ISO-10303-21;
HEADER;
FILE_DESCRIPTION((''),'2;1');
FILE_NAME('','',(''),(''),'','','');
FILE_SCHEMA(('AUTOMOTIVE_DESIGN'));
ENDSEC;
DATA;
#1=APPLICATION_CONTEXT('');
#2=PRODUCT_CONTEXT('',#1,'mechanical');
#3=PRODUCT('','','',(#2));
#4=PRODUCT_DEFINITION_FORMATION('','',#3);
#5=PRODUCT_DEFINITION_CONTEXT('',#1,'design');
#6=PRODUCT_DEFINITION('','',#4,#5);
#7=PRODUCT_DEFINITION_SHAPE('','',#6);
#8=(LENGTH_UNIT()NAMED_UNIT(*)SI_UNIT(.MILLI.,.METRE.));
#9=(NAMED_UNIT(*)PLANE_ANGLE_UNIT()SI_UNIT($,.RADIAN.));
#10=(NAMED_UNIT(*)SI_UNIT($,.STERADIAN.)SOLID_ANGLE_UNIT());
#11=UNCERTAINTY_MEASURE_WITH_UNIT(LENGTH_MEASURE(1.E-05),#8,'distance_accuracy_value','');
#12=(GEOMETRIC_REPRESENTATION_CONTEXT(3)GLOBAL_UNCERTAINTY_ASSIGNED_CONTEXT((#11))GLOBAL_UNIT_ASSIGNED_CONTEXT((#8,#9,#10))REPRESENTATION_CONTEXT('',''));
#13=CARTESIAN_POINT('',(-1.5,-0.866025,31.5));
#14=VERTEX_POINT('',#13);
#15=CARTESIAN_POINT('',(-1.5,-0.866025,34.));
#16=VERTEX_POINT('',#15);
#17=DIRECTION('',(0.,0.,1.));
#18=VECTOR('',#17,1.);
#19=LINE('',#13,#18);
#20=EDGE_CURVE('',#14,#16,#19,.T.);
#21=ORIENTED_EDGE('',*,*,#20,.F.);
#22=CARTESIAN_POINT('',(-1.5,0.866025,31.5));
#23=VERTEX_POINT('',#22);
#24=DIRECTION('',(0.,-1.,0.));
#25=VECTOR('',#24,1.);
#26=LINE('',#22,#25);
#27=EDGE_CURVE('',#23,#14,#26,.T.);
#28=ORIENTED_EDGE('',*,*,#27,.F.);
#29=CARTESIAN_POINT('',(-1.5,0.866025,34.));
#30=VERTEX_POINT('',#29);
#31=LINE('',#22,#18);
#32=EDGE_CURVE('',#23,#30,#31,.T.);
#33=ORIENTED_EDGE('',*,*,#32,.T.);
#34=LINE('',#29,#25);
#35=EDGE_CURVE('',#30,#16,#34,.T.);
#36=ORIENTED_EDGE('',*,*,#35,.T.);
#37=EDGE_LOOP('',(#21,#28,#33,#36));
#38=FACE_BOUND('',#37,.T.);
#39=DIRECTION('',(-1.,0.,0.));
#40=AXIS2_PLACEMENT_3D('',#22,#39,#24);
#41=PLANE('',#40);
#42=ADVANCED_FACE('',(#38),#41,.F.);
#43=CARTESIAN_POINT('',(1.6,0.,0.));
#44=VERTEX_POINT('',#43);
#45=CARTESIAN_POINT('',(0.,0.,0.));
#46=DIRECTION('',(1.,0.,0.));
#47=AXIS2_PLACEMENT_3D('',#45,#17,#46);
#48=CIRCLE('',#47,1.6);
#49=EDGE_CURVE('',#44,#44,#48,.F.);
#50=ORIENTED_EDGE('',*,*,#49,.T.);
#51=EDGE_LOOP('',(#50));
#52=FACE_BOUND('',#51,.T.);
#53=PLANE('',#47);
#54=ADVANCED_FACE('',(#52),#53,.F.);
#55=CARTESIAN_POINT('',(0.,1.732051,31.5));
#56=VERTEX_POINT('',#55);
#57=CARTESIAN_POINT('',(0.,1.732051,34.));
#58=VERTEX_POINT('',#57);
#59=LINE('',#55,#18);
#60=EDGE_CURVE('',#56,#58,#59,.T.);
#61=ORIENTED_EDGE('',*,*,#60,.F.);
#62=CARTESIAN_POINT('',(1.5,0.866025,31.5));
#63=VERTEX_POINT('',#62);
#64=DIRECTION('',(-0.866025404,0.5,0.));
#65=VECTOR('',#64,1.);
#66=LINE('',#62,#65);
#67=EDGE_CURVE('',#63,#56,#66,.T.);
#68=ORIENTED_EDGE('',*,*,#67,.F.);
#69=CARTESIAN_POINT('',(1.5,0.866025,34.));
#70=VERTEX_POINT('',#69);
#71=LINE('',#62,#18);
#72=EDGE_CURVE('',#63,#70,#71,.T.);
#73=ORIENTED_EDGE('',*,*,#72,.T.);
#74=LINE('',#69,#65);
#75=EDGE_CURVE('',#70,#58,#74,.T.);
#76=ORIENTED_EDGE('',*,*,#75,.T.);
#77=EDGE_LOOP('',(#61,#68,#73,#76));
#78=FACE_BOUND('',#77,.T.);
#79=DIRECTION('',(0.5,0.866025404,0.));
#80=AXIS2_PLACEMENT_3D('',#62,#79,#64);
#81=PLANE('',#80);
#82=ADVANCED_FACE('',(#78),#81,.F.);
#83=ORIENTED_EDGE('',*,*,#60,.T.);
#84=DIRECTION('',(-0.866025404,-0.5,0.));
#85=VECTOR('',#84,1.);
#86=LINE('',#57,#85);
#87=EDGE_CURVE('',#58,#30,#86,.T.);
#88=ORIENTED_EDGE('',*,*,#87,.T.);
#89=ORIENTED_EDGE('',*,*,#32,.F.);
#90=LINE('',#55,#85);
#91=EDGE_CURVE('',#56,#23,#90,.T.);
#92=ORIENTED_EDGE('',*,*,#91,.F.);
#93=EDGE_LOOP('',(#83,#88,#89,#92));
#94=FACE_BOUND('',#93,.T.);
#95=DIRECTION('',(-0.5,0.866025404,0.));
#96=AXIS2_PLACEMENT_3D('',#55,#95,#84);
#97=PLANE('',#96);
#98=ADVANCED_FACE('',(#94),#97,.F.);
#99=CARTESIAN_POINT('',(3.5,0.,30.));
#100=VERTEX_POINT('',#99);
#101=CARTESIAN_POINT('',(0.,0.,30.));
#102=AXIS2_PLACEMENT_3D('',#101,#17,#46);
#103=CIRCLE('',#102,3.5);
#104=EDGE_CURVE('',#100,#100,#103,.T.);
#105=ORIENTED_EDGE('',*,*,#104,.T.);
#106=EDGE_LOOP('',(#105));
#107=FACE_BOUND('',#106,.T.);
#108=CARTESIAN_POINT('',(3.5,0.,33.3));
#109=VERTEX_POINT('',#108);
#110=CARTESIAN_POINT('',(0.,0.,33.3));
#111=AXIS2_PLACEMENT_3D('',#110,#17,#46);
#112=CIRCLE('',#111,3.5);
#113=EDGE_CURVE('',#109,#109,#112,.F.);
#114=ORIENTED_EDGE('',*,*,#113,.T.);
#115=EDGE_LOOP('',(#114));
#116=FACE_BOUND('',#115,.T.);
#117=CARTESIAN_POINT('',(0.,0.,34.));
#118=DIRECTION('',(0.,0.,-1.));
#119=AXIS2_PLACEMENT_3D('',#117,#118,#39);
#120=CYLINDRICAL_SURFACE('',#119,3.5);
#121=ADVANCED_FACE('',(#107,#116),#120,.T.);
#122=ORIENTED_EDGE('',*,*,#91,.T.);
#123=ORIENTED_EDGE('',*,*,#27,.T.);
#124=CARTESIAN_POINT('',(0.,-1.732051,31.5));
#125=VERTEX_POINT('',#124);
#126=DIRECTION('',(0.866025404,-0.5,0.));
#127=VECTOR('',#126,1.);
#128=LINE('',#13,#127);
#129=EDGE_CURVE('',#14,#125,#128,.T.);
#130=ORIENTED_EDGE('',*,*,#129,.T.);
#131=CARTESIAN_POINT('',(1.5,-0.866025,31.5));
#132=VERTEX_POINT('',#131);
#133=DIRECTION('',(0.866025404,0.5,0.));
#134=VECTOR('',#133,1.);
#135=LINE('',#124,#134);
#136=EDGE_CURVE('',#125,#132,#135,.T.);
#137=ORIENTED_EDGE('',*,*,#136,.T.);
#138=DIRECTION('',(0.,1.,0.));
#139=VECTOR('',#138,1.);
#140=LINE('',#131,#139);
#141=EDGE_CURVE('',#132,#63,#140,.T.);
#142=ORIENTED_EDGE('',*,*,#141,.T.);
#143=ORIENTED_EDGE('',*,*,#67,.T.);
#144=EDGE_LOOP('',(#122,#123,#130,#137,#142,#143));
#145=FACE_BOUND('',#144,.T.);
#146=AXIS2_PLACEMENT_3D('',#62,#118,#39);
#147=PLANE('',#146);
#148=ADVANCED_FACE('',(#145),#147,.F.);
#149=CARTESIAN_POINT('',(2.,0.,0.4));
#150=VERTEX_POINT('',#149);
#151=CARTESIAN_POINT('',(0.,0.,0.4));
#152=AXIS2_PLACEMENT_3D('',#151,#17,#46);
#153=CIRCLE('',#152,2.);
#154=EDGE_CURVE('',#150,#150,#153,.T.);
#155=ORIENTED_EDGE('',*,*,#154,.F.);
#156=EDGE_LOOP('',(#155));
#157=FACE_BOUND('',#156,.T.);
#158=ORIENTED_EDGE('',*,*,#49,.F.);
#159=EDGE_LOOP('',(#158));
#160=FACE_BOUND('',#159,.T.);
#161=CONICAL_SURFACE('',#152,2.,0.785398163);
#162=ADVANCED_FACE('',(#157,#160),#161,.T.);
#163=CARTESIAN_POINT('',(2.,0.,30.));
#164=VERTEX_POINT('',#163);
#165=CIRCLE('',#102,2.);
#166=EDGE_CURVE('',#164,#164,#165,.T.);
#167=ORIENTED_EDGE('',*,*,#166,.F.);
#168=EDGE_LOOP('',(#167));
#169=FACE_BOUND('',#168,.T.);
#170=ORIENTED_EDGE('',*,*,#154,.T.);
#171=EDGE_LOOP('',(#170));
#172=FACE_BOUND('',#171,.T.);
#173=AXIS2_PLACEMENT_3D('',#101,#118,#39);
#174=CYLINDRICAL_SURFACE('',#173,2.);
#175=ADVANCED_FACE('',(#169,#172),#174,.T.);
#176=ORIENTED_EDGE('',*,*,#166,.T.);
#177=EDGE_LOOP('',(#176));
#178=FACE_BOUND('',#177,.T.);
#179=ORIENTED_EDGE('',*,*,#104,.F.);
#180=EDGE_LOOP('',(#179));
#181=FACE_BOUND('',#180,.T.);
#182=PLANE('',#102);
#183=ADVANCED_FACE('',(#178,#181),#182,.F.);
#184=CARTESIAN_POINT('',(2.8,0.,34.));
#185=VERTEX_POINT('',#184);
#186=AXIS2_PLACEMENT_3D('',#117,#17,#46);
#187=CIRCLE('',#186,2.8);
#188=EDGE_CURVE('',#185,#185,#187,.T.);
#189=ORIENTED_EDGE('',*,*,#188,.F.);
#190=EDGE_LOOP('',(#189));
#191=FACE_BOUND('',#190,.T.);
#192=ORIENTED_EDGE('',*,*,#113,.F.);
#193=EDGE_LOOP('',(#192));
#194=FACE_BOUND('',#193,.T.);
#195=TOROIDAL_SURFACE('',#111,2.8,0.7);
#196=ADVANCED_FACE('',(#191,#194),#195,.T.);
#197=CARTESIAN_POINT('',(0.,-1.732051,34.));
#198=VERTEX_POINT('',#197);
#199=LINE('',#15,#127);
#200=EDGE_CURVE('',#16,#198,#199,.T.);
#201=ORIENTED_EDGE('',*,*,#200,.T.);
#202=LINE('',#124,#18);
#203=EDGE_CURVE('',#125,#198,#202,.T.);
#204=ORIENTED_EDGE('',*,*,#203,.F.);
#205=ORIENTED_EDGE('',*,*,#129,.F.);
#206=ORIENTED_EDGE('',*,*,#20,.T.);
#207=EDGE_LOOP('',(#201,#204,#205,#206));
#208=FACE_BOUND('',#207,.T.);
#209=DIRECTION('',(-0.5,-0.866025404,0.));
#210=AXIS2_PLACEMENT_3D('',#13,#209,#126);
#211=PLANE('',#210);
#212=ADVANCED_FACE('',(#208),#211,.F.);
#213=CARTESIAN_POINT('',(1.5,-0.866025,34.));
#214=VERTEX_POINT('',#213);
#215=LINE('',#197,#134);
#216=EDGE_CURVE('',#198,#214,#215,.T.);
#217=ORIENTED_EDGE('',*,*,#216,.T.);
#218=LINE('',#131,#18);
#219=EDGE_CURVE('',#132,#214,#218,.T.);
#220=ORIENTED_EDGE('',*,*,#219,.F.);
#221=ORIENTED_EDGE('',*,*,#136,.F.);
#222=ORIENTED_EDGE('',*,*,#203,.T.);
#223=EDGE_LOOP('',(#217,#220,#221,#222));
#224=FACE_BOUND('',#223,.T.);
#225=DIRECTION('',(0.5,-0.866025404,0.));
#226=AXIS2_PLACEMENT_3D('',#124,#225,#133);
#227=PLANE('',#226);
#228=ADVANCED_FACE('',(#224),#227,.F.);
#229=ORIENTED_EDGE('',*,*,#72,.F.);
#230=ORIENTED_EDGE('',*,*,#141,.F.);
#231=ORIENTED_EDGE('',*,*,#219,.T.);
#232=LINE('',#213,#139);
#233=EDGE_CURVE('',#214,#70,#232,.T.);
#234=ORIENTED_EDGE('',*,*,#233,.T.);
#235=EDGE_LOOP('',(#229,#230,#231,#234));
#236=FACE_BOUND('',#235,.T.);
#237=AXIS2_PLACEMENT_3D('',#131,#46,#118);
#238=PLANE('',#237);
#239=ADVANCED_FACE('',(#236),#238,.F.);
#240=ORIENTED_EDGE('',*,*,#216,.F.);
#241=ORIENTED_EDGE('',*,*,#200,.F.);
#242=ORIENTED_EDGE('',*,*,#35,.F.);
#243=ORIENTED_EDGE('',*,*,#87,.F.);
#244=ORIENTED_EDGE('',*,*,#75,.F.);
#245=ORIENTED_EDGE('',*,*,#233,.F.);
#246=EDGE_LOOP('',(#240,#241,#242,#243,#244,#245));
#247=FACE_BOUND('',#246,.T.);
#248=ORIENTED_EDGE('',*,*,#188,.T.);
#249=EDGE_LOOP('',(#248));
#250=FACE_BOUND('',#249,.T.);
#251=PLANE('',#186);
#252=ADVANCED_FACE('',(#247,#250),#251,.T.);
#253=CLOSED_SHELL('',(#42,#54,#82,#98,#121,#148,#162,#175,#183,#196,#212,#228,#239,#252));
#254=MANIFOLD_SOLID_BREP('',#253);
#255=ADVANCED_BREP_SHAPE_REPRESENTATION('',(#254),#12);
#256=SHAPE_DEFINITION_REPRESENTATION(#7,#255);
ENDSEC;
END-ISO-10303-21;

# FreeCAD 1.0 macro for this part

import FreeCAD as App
import Part
import Sketcher
from FreeCAD import Vector
Q = App.Units.Quantity


def edges_at(feature, points):
    """Names of the edges that pass closest to the given points."""
    edges = feature.Shape.Edges
    near = lambda p: min(range(len(edges)), key=lambda i: edges[i].distToShape(Part.Vertex(*p))[0])
    return sorted({f"Edge{near(p) + 1}" for p in points})


def add_polygon(sketch, points):
    """Adds a closed chain of lines whose ends are joined by coincident constraints."""
    first, n = sketch.GeometryCount, len(points)
    for a, b in zip(points, points[1:] + points[:1]):
        sketch.addGeometry(Part.LineSegment(App.Vector(*a, 0), App.Vector(*b, 0)), False)
    for i in range(n):
        sketch.addConstraint(Sketcher.Constraint("Coincident", first + i, 2, first + (i + 1) % n, 1))

doc = App.newDocument("Part")
body = doc.addObject("PartDesign::Body", "Body")

sketch1 = body.newObject("Sketcher::SketchObject", "Sketch")
sketch1.AttachmentSupport = (doc.getObject("XY_Plane"), [""])
sketch1.MapMode = "FlatFace"
sketch1.addGeometry(Part.Circle(Vector(0, 0, 0), Vector(0, 0, 1), 2), False)
sketch1.addConstraint(Sketcher.Constraint("Coincident", 0, 3, -1, 1))
sketch1.addConstraint(Sketcher.Constraint("Diameter", 0, Q("4 mm")))
pad1 = body.newObject("PartDesign::Pad", "Pad")
pad1.Profile = sketch1
pad1.Length = 30

sketch2 = body.newObject("Sketcher::SketchObject", "Sketch001")
sketch2.AttachmentSupport = (doc.getObject("XY_Plane"), [""])
sketch2.MapMode = "FlatFace"
sketch2.AttachmentOffset = App.Placement(Vector(0, 0, 30), App.Rotation())
sketch2.addGeometry(Part.Circle(Vector(0, 0, 0), Vector(0, 0, 1), 3.5), False)
sketch2.addConstraint(Sketcher.Constraint("Coincident", 0, 3, -1, 1))
sketch2.addConstraint(Sketcher.Constraint("Diameter", 0, Q("7 mm")))
pad2 = body.newObject("PartDesign::Pad", "Pad001")
pad2.Profile = sketch2
pad2.Length = 4
doc.recompute()

chamfer = body.newObject("PartDesign::Chamfer", "Chamfer")
chamfer.Base = (pad2, edges_at(pad2, [(-2, 0, 0)]))
chamfer.Size = 0.4
doc.recompute()

fillet = body.newObject("PartDesign::Fillet", "Fillet")
fillet.Base = (chamfer, edges_at(chamfer, [(-3.5, 0, 34)]))
fillet.Radius = 0.7

sketch3 = body.newObject("Sketcher::SketchObject", "Sketch002")
sketch3.AttachmentSupport = (doc.getObject("XY_Plane"), [""])
sketch3.MapMode = "FlatFace"
sketch3.AttachmentOffset = App.Placement(Vector(0, 0, 34), App.Rotation())
add_polygon(sketch3, [(0, 1.732051), (-1.5, 0.866025), (-1.5, -0.866025), (0, -1.732051), (1.5, -0.866025), (1.5, 0.866025)])
sketch3.addConstraint(Sketcher.Constraint("Vertical", 1))
sketch3.addConstraint(Sketcher.Constraint("Vertical", 4))
sketch3.addConstraint(Sketcher.Constraint("Symmetric", 0, 2, 3, 2, -1, 1))
sketch3.addConstraint(Sketcher.Constraint("Symmetric", 2, 2, 5, 2, -1, 1))
sketch3.addConstraint(Sketcher.Constraint("PointOnObject", 2, 2, -2))
sketch3.addConstraint(Sketcher.Constraint("Parallel", 2, 5))
sketch3.addConstraint(Sketcher.Constraint("Horizontal", 1, 2, 3, 2))
sketch3.addConstraint(Sketcher.Constraint("Angle", 0, Q("-150 deg")))
sketch3.addConstraint(Sketcher.Constraint("DistanceX", 1, 2, 3, 2, Q("3 mm")))
sketch3.addConstraint(Sketcher.Constraint("DistanceY", 1, 2, 1, 1, Q("1.732051 mm")))
pocket1 = body.newObject("PartDesign::Pocket", "Pocket")
pocket1.Profile = sketch3
pocket1.Length = 2.5

doc.recompute()
